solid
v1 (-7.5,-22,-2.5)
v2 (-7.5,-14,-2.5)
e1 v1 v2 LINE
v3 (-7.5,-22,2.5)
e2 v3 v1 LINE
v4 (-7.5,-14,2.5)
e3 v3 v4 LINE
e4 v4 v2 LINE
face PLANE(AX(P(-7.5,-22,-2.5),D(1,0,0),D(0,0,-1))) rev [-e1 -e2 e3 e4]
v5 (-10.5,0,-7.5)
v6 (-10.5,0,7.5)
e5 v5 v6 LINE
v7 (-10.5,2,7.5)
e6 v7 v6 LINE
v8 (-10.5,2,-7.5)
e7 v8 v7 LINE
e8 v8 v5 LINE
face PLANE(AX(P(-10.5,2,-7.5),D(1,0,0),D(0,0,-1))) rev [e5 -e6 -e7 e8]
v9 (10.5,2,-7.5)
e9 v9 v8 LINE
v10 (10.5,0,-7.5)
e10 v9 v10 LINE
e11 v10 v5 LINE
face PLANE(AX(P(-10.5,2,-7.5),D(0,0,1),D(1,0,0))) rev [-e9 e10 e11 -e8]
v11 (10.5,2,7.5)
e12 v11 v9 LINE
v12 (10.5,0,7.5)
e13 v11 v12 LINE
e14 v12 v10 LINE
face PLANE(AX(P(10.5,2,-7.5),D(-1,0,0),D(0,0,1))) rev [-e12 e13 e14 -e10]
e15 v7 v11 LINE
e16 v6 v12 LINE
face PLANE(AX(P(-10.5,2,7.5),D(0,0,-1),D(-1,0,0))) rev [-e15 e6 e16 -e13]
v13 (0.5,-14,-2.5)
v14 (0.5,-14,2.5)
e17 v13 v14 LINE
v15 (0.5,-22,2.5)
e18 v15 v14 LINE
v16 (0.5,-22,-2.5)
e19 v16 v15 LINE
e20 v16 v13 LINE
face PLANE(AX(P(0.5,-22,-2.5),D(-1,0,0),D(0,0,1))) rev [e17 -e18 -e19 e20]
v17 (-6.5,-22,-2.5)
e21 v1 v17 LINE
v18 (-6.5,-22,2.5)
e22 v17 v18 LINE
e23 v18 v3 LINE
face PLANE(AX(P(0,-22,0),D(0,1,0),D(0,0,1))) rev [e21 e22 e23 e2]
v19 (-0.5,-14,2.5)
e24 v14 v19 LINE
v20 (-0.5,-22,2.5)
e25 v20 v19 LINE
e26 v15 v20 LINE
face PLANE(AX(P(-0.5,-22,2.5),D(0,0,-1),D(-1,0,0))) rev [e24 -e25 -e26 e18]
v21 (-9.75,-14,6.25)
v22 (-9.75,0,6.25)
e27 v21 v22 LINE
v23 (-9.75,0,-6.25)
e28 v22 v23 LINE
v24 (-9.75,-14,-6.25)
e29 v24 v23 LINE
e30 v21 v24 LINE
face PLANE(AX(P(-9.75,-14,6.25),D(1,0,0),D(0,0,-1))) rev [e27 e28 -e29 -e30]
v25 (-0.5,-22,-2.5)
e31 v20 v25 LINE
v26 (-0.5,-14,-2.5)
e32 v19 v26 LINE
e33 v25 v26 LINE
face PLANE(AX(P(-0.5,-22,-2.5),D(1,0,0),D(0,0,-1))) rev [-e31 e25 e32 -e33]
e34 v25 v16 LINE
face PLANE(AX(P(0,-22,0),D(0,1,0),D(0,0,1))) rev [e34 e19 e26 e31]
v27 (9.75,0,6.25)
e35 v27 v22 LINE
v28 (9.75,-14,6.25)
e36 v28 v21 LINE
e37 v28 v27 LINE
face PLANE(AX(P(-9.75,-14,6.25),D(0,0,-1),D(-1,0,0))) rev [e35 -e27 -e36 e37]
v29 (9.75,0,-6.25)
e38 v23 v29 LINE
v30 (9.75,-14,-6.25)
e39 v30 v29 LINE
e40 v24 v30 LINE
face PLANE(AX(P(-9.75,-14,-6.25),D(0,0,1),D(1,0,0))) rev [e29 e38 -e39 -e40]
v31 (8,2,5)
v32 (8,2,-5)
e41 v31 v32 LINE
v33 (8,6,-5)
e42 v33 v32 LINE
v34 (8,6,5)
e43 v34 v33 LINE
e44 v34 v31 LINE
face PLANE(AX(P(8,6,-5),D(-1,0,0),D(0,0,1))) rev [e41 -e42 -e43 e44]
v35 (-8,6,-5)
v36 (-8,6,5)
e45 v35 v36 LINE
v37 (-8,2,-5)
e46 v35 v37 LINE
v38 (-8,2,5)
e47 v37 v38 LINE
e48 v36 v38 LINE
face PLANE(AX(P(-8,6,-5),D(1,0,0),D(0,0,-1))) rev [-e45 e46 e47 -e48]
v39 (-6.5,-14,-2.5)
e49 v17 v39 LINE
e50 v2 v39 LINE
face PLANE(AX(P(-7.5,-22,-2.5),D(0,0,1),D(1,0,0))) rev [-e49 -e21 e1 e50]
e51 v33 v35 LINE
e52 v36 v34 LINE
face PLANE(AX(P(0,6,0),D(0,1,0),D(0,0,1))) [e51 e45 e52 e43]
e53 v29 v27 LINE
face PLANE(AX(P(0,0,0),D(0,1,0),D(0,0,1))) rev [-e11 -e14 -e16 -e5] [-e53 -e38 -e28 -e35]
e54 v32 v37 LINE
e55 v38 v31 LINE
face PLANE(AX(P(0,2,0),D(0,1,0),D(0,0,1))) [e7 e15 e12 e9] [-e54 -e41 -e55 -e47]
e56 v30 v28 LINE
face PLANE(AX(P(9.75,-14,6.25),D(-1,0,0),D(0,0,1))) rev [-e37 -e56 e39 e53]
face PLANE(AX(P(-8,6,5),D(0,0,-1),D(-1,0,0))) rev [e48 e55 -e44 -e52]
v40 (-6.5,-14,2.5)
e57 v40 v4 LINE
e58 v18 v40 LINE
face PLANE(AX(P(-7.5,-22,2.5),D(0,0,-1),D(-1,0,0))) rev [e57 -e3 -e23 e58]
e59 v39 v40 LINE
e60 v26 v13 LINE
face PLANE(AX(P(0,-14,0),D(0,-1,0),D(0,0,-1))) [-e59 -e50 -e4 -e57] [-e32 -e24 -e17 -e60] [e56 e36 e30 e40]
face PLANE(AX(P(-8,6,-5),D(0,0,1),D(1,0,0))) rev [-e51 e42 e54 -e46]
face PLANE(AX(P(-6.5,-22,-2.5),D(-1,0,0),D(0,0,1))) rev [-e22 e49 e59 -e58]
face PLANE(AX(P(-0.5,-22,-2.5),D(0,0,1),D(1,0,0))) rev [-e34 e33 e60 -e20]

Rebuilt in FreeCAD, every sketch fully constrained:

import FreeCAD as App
import Part
import Sketcher


def add_polygon(sketch, points):
    """Adds a closed chain of lines whose ends are joined by coincident constraints."""
    first, n = sketch.GeometryCount, len(points)
    for a, b in zip(points, points[1:] + points[:1]):
        sketch.addGeometry(Part.LineSegment(App.Vector(*a, 0), App.Vector(*b, 0)), False)
    for i in range(n):
        sketch.addConstraint(Sketcher.Constraint("Coincident", first + i, 2, first + (i + 1) % n, 1))

doc = App.newDocument("Part")
params = doc.addObject("Spreadsheet::Sheet", "Params")
for row, (alias, value) in enumerate([
    ("sketch1_width", "21 mm"),
    ("sketch1_height", "15 mm"),
    ("pad1_length", "2 mm"),
    ("sketch2_width", "16 mm"),
    ("sketch2_height", "10 mm"),
    ("pad2_length", "4 mm"),
    ("sketch3_width", "19.5 mm"),
    ("sketch3_height", "12.5 mm"),
    ("pad3_length", "14 mm"),
    ("sketch4_width", "1 mm"),
    ("sketch4_height", "5 mm"),
    ("pad4_length", "8 mm"),
], start=1):
    params.set(f"A{row}", alias)
    params.set(f"B{row}", "=" + value)
    params.setAlias(f"B{row}", alias)

body = doc.addObject("PartDesign::Body", "Body")

sketch1 = body.newObject("Sketcher::SketchObject", "Sketch")
sketch1.AttachmentSupport = (doc.getObject("XZ_Plane"), [""])
sketch1.MapMode = "FlatFace"
add_polygon(sketch1, [(-10, -8), (-10, 8), (10, 8), (10, -8)])
sketch1.addConstraint(Sketcher.Constraint("Vertical", 0))
sketch1.addConstraint(Sketcher.Constraint("Horizontal", 1))
sketch1.addConstraint(Sketcher.Constraint("Vertical", 2))
sketch1.addConstraint(Sketcher.Constraint("Horizontal", 3))
sketch1.addConstraint(Sketcher.Constraint("Symmetric", 0, 2, 2, 2, -1, 1))
sketch1.addConstraint(Sketcher.Constraint("DistanceX", 1, 1, 1, 2, 21.0))
sketch1.addConstraint(Sketcher.Constraint("DistanceY", 0, 1, 0, 2, 15.0))
sketch1.setExpression("Constraints[9]", "Params.sketch1_width")
sketch1.setExpression("Constraints[10]", "Params.sketch1_height")
pad1 = body.newObject("PartDesign::Pad", "Pad")
pad1.Profile = sketch1
pad1.setExpression("Length", "Params.pad1_length")
pad1.Reversed = True

sketch2 = body.newObject("Sketcher::SketchObject", "Sketch001")
sketch2.AttachmentSupport = (doc.getObject("XZ_Plane"), [""])
sketch2.MapMode = "FlatFace"
sketch2.AttachmentOffset = App.Placement(App.Vector(0, 0, -2), App.Rotation())
add_polygon(sketch2, [(-8, -5), (-8, 5), (8, 5), (8, -5)])
sketch2.addConstraint(Sketcher.Constraint("Vertical", 0))
sketch2.addConstraint(Sketcher.Constraint("Horizontal", 1))
sketch2.addConstraint(Sketcher.Constraint("Vertical", 2))
sketch2.addConstraint(Sketcher.Constraint("Horizontal", 3))
sketch2.addConstraint(Sketcher.Constraint("Symmetric", 0, 2, 2, 2, -1, 1))
sketch2.addConstraint(Sketcher.Constraint("DistanceX", 1, 1, 1, 2, 16.0))
sketch2.addConstraint(Sketcher.Constraint("DistanceY", 0, 1, 0, 2, 10.0))
sketch2.setExpression("Constraints[9]", "Params.sketch2_width")
sketch2.setExpression("Constraints[10]", "Params.sketch2_height")
pad2 = body.newObject("PartDesign::Pad", "Pad001")
pad2.Profile = sketch2
pad2.setExpression("Length", "Params.pad2_length")
pad2.Reversed = True

sketch3 = body.newObject("Sketcher::SketchObject", "Sketch002")
sketch3.AttachmentSupport = (doc.getObject("XZ_Plane"), [""])
sketch3.MapMode = "FlatFace"
add_polygon(sketch3, [(-10, 6), (-10, -6), (10, -6), (10, 6)])
sketch3.addConstraint(Sketcher.Constraint("Vertical", 0))
sketch3.addConstraint(Sketcher.Constraint("Horizontal", 1))
sketch3.addConstraint(Sketcher.Constraint("Vertical", 2))
sketch3.addConstraint(Sketcher.Constraint("Horizontal", 3))
sketch3.addConstraint(Sketcher.Constraint("Symmetric", 0, 2, 2, 2, -1, 1))
sketch3.addConstraint(Sketcher.Constraint("DistanceX", 1, 1, 1, 2, 19.5))
sketch3.addConstraint(Sketcher.Constraint("DistanceY", 0, 2, 0, 1, 12.5))
sketch3.setExpression("Constraints[9]", "Params.sketch3_width")
sketch3.setExpression("Constraints[10]", "Params.sketch3_height")
pad3 = body.newObject("PartDesign::Pad", "Pad002")
pad3.Profile = sketch3
pad3.setExpression("Length", "Params.pad3_length")

sketch4 = body.newObject("Sketcher::SketchObject", "Sketch003")
sketch4.AttachmentSupport = (doc.getObject("XZ_Plane"), [""])
sketch4.MapMode = "FlatFace"
sketch4.AttachmentOffset = App.Placement(App.Vector(0, 0, 14), App.Rotation())
add_polygon(sketch4, [(-7.5, 2.5), (-7.5, -2.5), (-6.5, -2.5), (-6.5, 2.5)])
add_polygon(sketch4, [(-0.5, 2.5), (-0.5, -2.5), (0.5, -2.5), (0.5, 2.5)])
sketch4.addConstraint(Sketcher.Constraint("Vertical", 0))
sketch4.addConstraint(Sketcher.Constraint("Horizontal", 1))
sketch4.addConstraint(Sketcher.Constraint("Vertical", 2))
sketch4.addConstraint(Sketcher.Constraint("Horizontal", 3))
sketch4.addConstraint(Sketcher.Constraint("Vertical", 4))
sketch4.addConstraint(Sketcher.Constraint("Horizontal", 5))
sketch4.addConstraint(Sketcher.Constraint("Vertical", 6))
sketch4.addConstraint(Sketcher.Constraint("Horizontal", 7))
sketch4.addConstraint(Sketcher.Constraint("Symmetric", 4, 2, 6, 2, -1, 1))
sketch4.addConstraint(Sketcher.Constraint("Horizontal", 1, 2, 4, 2))
sketch4.addConstraint(Sketcher.Constraint("Horizontal", 3, 2, 6, 2))
sketch4.addConstraint(Sketcher.Constraint("Equal", 3, 5))
sketch4.addConstraint(Sketcher.Constraint("DistanceX", 1, 1, 1, 2, 1.0))
sketch4.addConstraint(Sketcher.Constraint("DistanceY", 0, 2, 0, 1, 5.0))
sketch4.addConstraint(Sketcher.Constraint("DistanceX", 1, 2, 4, 2, 6.0))
sketch4.setExpression("Constraints[20]", "Params.sketch4_width")
sketch4.setExpression("Constraints[21]", "Params.sketch4_height")
pad4 = body.newObject("PartDesign::Pad", "Pad003")
pad4.Profile = sketch4
pad4.setExpression("Length", "Params.pad4_length")

doc.recompute()
